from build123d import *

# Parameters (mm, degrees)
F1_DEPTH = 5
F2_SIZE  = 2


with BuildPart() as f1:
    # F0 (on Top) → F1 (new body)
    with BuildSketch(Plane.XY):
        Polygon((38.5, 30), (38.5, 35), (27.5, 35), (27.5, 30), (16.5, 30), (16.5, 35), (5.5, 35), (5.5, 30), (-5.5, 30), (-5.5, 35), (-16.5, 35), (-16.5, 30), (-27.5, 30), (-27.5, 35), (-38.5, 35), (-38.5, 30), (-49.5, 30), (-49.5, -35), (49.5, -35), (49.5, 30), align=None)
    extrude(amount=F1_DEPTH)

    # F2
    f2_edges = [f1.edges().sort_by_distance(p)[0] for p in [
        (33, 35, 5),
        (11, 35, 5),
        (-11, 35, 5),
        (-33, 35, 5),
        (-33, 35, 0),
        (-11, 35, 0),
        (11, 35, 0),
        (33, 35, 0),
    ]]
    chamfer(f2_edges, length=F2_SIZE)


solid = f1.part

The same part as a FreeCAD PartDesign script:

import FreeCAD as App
import Part
import Sketcher

V = App.Vector


def edges_at(feature, points):
    """Names of the edges that pass closest to the given points."""
    edges = feature.Shape.Edges
    near = lambda p: min(range(len(edges)), key=lambda i: edges[i].distToShape(Part.Vertex(*p))[0])
    return sorted({f"Edge{near(p) + 1}" for p in points})


def add_polygon(sketch, points):
    """Adds a closed chain of lines whose ends are joined by coincident constraints."""
    first, n = sketch.GeometryCount, len(points)
    for a, b in zip(points, points[1:] + points[:1]):
        sketch.addGeometry(Part.LineSegment(App.Vector(*a, 0), App.Vector(*b, 0)), False)
    for i in range(n):
        sketch.addConstraint(Sketcher.Constraint("Coincident", first + i, 2, first + (i + 1) % n, 1))

doc = App.newDocument("Part")
body = doc.addObject("PartDesign::Body", "Body")

# Sketch on XY plane
sketch1 = body.newObject("Sketcher::SketchObject", "Sketch")
sketch1.AttachmentSupport = (doc.getObject("XY_Plane"), [""])
sketch1.MapMode = "FlatFace"
add_polygon(sketch1, [(38, 30), (38, 35), (28, 35), (28, 30), (16, 30), (16, 35), (6, 35), (6, 30), (-6, 30), (-6, 35), (-16, 35), (-16, 30), (-28, 30), (-28, 35), (-38, 35), (-38, 30), (-50, 30), (-50, -35), (50, -35), (50, 30)])  # lines 0-19
sketch1.addConstraint(Sketcher.Constraint("Vertical", 0))
sketch1.addConstraint(Sketcher.Constraint("Horizontal", 1))
sketch1.addConstraint(Sketcher.Constraint("Vertical", 2))
sketch1.addConstraint(Sketcher.Constraint("Horizontal", 3))
sketch1.addConstraint(Sketcher.Constraint("Vertical", 4))
sketch1.addConstraint(Sketcher.Constraint("Horizontal", 5))
sketch1.addConstraint(Sketcher.Constraint("Vertical", 6))
sketch1.addConstraint(Sketcher.Constraint("Horizontal", 7))
sketch1.addConstraint(Sketcher.Constraint("Vertical", 8))
sketch1.addConstraint(Sketcher.Constraint("Horizontal", 9))
sketch1.addConstraint(Sketcher.Constraint("Vertical", 10))
sketch1.addConstraint(Sketcher.Constraint("Horizontal", 11))
sketch1.addConstraint(Sketcher.Constraint("Vertical", 12))
sketch1.addConstraint(Sketcher.Constraint("Horizontal", 13))
sketch1.addConstraint(Sketcher.Constraint("Vertical", 14))
sketch1.addConstraint(Sketcher.Constraint("Horizontal", 15))
sketch1.addConstraint(Sketcher.Constraint("Vertical", 16))
sketch1.addConstraint(Sketcher.Constraint("Horizontal", 17))
sketch1.addConstraint(Sketcher.Constraint("Vertical", 18))
sketch1.addConstraint(Sketcher.Constraint("Horizontal", 19))
sketch1.addConstraint(Sketcher.Constraint("Symmetric", 5, 2, 8, 2, -2))
sketch1.addConstraint(Sketcher.Constraint("Symmetric", 3, 2, 10, 2, -2))
sketch1.addConstraint(Sketcher.Constraint("Symmetric", 1, 2, 12, 2, -2))
sketch1.addConstraint(Sketcher.Constraint("Symmetric", 15, 2, 18, 2, -2))
sketch1.addConstraint(Sketcher.Constraint("Horizontal", 1, 2, 4, 2))
sketch1.addConstraint(Sketcher.Constraint("Horizontal", 3, 2, 6, 2))
sketch1.addConstraint(Sketcher.Constraint("Horizontal", 11, 2, 14, 2))
sketch1.addConstraint(Sketcher.Constraint("Equal", 1, 3))
sketch1.addConstraint(Sketcher.Constraint("Equal", 3, 5))
sketch1.addConstraint(Sketcher.Constraint("Equal", 5, 7))
sketch1.addConstraint(Sketcher.Constraint("Equal", 11, 13))
sketch1.addConstraint(Sketcher.Constraint("Equal", 13, 15))
sketch1.addConstraint(Sketcher.Constraint("DistanceX", 1, 2, 1, 1, 11.0))
sketch1.addConstraint(Sketcher.Constraint("DistanceY", 0, 1, 0, 2, 5.0))
sketch1.addConstraint(Sketcher.Constraint("DistanceY", 16, 2, 16, 1, 65.0))
sketch1.addConstraint(Sketcher.Constraint("DistanceY", -1, 1, 0, 2, 35.0))
pad1 = body.newObject("PartDesign::Pad", "Pad")
pad1.Profile = sketch1
pad1.Length = 5
doc.recompute()

chamfer = body.newObject("PartDesign::Chamfer", "Chamfer")
chamfer.Base = (pad1, edges_at(pad1, [
    (33, 35, 5),
    (11, 35, 5),
    (-11, 35, 5),
    (-33, 35, 5),
    (-33, 35, 0),
    (-11, 35, 0),
    (11, 35, 0),
    (33, 35, 0),
]))
chamfer.Size = 2

doc.recompute()
